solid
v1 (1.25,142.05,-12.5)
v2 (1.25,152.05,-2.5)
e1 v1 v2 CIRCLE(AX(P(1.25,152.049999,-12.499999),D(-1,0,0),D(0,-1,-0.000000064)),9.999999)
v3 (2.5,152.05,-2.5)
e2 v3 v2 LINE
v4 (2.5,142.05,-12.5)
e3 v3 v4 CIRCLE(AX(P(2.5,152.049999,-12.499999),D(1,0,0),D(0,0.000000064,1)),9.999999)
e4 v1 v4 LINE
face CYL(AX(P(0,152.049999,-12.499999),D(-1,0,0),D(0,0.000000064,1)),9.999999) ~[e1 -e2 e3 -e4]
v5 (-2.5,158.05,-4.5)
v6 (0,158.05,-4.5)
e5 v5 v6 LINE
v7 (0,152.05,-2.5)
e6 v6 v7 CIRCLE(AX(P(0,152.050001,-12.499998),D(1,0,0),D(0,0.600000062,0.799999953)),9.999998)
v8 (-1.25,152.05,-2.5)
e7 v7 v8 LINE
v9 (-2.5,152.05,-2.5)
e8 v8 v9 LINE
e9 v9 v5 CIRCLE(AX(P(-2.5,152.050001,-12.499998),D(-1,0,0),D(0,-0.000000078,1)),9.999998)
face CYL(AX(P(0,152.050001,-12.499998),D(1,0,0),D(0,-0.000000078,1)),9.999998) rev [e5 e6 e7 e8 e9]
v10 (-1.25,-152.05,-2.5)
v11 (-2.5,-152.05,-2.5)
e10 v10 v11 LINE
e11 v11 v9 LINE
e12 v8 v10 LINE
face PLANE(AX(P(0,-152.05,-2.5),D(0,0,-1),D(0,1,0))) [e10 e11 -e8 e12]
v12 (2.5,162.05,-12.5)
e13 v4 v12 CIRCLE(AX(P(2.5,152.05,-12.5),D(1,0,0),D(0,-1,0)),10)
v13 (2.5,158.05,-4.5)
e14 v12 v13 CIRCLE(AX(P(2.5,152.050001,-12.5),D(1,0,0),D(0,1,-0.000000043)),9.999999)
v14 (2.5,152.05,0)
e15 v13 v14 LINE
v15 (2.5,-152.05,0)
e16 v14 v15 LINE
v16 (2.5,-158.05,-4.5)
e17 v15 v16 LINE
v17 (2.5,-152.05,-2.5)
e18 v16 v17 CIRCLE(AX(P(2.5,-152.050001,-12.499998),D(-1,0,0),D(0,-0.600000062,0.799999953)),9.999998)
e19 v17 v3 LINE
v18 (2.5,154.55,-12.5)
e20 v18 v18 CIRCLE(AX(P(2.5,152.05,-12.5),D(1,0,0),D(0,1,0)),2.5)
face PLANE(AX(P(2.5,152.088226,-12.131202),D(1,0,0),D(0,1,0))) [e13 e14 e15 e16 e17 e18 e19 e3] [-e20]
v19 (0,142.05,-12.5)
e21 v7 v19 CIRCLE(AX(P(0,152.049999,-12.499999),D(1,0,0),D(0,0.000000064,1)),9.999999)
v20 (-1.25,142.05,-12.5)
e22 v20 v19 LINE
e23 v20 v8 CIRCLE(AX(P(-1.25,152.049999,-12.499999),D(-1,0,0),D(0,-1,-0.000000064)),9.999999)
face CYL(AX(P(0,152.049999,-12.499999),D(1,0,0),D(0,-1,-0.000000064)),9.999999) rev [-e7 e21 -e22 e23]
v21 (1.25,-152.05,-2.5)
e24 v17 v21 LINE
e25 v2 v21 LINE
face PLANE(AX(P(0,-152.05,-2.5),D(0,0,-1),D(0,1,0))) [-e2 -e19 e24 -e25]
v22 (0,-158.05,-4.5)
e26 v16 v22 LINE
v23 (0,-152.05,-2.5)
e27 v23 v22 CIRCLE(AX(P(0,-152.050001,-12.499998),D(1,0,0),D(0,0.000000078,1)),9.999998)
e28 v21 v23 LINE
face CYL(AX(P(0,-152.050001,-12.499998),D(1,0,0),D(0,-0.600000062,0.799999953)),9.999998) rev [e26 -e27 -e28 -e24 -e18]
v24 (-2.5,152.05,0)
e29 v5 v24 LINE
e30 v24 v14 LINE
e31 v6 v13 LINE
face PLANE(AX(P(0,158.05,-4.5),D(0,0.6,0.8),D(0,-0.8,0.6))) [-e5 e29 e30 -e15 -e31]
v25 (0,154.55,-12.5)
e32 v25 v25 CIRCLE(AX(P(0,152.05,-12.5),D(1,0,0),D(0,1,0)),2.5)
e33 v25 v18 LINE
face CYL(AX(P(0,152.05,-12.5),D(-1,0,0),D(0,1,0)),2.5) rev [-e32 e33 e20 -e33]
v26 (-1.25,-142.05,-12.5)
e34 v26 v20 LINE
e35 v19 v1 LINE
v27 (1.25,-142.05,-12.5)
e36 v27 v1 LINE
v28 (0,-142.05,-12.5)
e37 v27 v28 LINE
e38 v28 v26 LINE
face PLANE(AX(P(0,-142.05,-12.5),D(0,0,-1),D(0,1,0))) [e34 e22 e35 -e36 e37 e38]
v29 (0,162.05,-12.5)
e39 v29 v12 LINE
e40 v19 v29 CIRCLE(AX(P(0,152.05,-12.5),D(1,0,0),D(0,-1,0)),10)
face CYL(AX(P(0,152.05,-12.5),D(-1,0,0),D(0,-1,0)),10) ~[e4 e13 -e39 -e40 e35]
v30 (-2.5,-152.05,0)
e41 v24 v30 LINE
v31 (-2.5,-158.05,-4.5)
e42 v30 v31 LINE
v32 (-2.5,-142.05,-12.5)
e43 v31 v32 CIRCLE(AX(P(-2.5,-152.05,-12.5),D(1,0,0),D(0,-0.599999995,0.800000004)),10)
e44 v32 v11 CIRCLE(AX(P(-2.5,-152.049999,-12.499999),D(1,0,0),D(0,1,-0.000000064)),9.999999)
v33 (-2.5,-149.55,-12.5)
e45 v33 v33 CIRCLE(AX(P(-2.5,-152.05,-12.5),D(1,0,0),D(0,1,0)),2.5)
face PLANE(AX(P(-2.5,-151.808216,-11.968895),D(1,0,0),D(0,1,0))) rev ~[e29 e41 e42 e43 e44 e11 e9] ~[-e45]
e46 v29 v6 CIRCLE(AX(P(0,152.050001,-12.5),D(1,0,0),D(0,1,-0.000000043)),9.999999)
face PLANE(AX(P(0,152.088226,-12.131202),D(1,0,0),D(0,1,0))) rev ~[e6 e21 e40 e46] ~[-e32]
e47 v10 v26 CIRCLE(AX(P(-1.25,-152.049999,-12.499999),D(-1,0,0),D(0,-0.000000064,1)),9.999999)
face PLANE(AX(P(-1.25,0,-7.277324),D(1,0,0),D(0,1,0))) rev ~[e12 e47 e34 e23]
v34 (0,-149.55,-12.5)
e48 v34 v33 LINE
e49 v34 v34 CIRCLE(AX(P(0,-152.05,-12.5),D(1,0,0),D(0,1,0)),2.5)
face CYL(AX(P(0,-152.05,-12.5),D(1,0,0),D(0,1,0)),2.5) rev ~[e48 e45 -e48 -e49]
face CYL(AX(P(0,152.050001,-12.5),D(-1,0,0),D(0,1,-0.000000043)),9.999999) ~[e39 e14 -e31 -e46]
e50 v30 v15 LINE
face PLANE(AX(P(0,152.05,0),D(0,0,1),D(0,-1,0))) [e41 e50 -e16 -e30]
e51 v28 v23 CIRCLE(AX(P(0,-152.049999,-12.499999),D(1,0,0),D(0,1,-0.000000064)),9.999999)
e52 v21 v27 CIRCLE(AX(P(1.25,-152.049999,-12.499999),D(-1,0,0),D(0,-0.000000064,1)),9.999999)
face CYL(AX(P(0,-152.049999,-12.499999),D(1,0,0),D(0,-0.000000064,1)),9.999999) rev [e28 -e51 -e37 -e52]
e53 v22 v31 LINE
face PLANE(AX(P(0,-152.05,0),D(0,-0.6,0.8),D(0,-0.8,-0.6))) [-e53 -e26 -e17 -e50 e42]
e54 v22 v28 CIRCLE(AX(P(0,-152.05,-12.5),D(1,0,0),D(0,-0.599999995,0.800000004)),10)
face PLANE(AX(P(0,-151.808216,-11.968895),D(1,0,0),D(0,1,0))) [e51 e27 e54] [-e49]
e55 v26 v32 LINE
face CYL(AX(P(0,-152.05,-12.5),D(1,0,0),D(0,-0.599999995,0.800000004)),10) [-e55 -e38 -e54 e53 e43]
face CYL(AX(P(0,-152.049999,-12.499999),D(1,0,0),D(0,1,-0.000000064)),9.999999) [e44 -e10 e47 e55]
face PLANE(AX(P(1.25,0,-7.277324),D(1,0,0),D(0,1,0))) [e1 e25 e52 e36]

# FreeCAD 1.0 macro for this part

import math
import FreeCAD as App
import Part
import Sketcher
Q = App.Units.Quantity

doc = App.newDocument("Part")
body = doc.addObject("PartDesign::Body", "Body")

# Sketch on YZ plane
sketch1 = body.newObject("Sketcher::SketchObject", "Sketch")
sketch1.AttachmentSupport = (doc.getObject("YZ_Plane"), [""])
sketch1.MapMode = "FlatFace"
sketch1.addGeometry(Part.ArcOfCircle(Part.Circle(App.Vector(152.050001, -12.499998, 0), App.Vector(0, 0, 1), 9.999998), math.radians(53.130098), math.radians(90.000004)), False)
sketch1.addGeometry(Part.LineSegment(App.Vector(158.05, -4.5, 0), App.Vector(152.05, 0, 0)), False)
sketch1.addGeometry(Part.LineSegment(App.Vector(152.05, 0, 0), App.Vector(-152.05, 0, 0)), False)
sketch1.addGeometry(Part.LineSegment(App.Vector(-152.05, 0, 0), App.Vector(-158.05, -4.5, 0)), False)
sketch1.addGeometry(Part.ArcOfCircle(Part.Circle(App.Vector(-152.050001, -12.499998, 0), App.Vector(0, 0, 1), 9.999998), math.radians(89.999996), math.radians(126.869902)), False)
sketch1.addGeometry(Part.LineSegment(App.Vector(-152.05, -2.5, 0), App.Vector(152.05, -2.5, 0)), False)
sketch1.addConstraint(Sketcher.Constraint("Tangent", 0, 1, 1, 1))
sketch1.addConstraint(Sketcher.Constraint("Coincident", 1, 2, 2, 1))
sketch1.addConstraint(Sketcher.Constraint("Coincident", 2, 2, 3, 1))
sketch1.addConstraint(Sketcher.Constraint("Tangent", 3, 2, 4, 2))
sketch1.addConstraint(Sketcher.Constraint("Tangent", 4, 1, 5, 1))
sketch1.addConstraint(Sketcher.Constraint("Tangent", 5, 2, 0, 2))
sketch1.addConstraint(Sketcher.Constraint("Horizontal", 2))
sketch1.addConstraint(Sketcher.Constraint("Horizontal", 5))
sketch1.addConstraint(Sketcher.Constraint("Equal", 0, 4))
sketch1.addConstraint(Sketcher.Constraint("Symmetric", 1, 2, 2, 2, -1, 1))
sketch1.addConstraint(Sketcher.Constraint("Horizontal", 0, 1, 3, 2))
sketch1.addConstraint(Sketcher.Constraint("Vertical", 0, 3, 1, 2))
sketch1.addConstraint(Sketcher.Constraint("DistanceX", 2, 2, 2, 1, Q("304.1 mm")))
sketch1.addConstraint(Sketcher.Constraint("DistanceX", 0, 3, 0, 1, Q("5.999999 mm")))
sketch1.addConstraint(Sketcher.Constraint("DistanceY", 3, 2, 4, 1, Q("2 mm")))
pad1 = body.newObject("PartDesign::Pad", "Pad")
pad1.Profile = sketch1
pad1.Length = 5
pad1.Midplane = True

# Sketch on YZ plane
sketch2 = body.newObject("Sketcher::SketchObject", "Sketch001")
sketch2.AttachmentSupport = (doc.getObject("YZ_Plane"), [""])
sketch2.MapMode = "FlatFace"
sketch2.addGeometry(Part.ArcOfCircle(Part.Circle(App.Vector(-152.05, -12.5, 0), App.Vector(0, 0, 1), 10), math.radians(126.869897), math.radians(360)), False)
sketch2.addGeometry(Part.ArcOfCircle(Part.Circle(App.Vector(-152.049999, -12.499999, 0), App.Vector(0, 0, 1), 9.999999), math.radians(-0.000004), math.radians(90.000004)), False)
sketch2.addGeometry(Part.ArcOfCircle(Part.Circle(App.Vector(-152.050001, -12.499998, 0), App.Vector(0, 0, 1), 9.999998), math.radians(89.999996), math.radians(126.869902)), False)
sketch2.addGeometry(Part.Circle(App.Vector(-152.05, -12.5, 0), App.Vector(0, 0, 1), 2.5), False)
sketch2.addConstraint(Sketcher.Constraint("Tangent", 0, 2, 1, 1))
sketch2.addConstraint(Sketcher.Constraint("Tangent", 1, 2, 2, 1))
sketch2.addConstraint(Sketcher.Constraint("Tangent", 2, 2, 0, 1))
sketch2.addConstraint(Sketcher.Constraint("Coincident", 3, 3, 0, 3))
sketch2.addConstraint(Sketcher.Constraint("Horizontal", 3, 3, 0, 2))
sketch2.addConstraint(Sketcher.Constraint("Vertical", 3, 3, 1, 2))
sketch2.addConstraint(Sketcher.Constraint("Diameter", 3, Q("5 mm")))
sketch2.addConstraint(Sketcher.Constraint("Radius", 0, Q("10 mm")))
sketch2.addConstraint(Sketcher.Constraint("DistanceX", 2, 2, 1, 2, Q("6 mm")))
sketch2.addConstraint(Sketcher.Constraint("DistanceY", 0, 3, -1, 1, Q("12.5 mm")))
sketch2.addConstraint(Sketcher.Constraint("DistanceX", 0, 3, -1, 1, Q("152.05 mm")))
pad2 = body.newObject("PartDesign::Pad", "Pad001")
pad2.Profile = sketch2
pad2.Length = 2.5
pad2.Reversed = True

# Sketch on YZ plane
sketch3 = body.newObject("Sketcher::SketchObject", "Sketch002")
sketch3.AttachmentSupport = (doc.getObject("YZ_Plane"), [""])
sketch3.MapMode = "FlatFace"
sketch3.addGeometry(Part.ArcOfCircle(Part.Circle(App.Vector(152.05, -12.5, 0), App.Vector(0, 0, 1), 10), math.radians(180), math.radians(360)), False)
sketch3.addGeometry(Part.ArcOfCircle(Part.Circle(App.Vector(152.050001, -12.5, 0), App.Vector(0, 0, 1), 9.999999), math.radians(-0.000002), math.radians(53.130105)), False)
sketch3.addGeometry(Part.ArcOfCircle(Part.Circle(App.Vector(152.050001, -12.499998, 0), App.Vector(0, 0, 1), 9.999998), math.radians(53.130098), math.radians(90.000004)), False)
sketch3.addGeometry(Part.ArcOfCircle(Part.Circle(App.Vector(152.049999, -12.499999, 0), App.Vector(0, 0, 1), 9.999999), math.radians(89.999996), math.radians(180.000004)), False)
sketch3.addGeometry(Part.Circle(App.Vector(152.05, -12.5, 0), App.Vector(0, 0, 1), 2.5), False)
sketch3.addConstraint(Sketcher.Constraint("Tangent", 0, 2, 1, 1))
sketch3.addConstraint(Sketcher.Constraint("Tangent", 1, 2, 2, 1))
sketch3.addConstraint(Sketcher.Constraint("Tangent", 2, 2, 3, 1))
sketch3.addConstraint(Sketcher.Constraint("Tangent", 3, 2, 0, 1))
sketch3.addConstraint(Sketcher.Constraint("Coincident", 4, 3, 0, 3))
sketch3.addConstraint(Sketcher.Constraint("Equal", 0, 1))
sketch3.addConstraint(Sketcher.Constraint("Horizontal", 4, 3, 0, 2))
sketch3.addConstraint(Sketcher.Constraint("Horizontal", 0, 2, 3, 2))
sketch3.addConstraint(Sketcher.Constraint("Vertical", 4, 3, 2, 2))
sketch3.addConstraint(Sketcher.Constraint("Diameter", 4, Q("5 mm")))
sketch3.addConstraint(Sketcher.Constraint("Radius", 0, Q("10 mm")))
sketch3.addConstraint(Sketcher.Constraint("DistanceX", 1, 2, 0, 2, Q("4 mm")))
sketch3.addConstraint(Sketcher.Constraint("DistanceY", 0, 3, -1, 1, Q("12.5 mm")))
sketch3.addConstraint(Sketcher.Constraint("DistanceX", -1, 1, 0, 3, Q("152.05 mm")))
pad3 = body.newObject("PartDesign::Pad", "Pad002")
pad3.Profile = sketch3
pad3.Length = 2.5

# Sketch on YZ plane
sketch4 = body.newObject("Sketcher::SketchObject", "Sketch003")
sketch4.AttachmentSupport = (doc.getObject("YZ_Plane"), [""])
sketch4.MapMode = "FlatFace"
sketch4.addGeometry(Part.LineSegment(App.Vector(-142.05, -12.5, 0), App.Vector(142.05, -12.5, 0)), False)
sketch4.addGeometry(Part.ArcOfCircle(Part.Circle(App.Vector(152.049999, -12.499999, 0), App.Vector(0, 0, 1), 9.999999), math.radians(89.999996), math.radians(180.000004)), False)
sketch4.addGeometry(Part.LineSegment(App.Vector(152.05, -2.5, 0), App.Vector(-152.05, -2.5, 0)), False)
sketch4.addGeometry(Part.ArcOfCircle(Part.Circle(App.Vector(-152.049999, -12.499999, 0), App.Vector(0, 0, 1), 9.999999), math.radians(-0.000004), math.radians(90.000004)), False)
sketch4.addConstraint(Sketcher.Constraint("Coincident", 0, 2, 1, 2))
sketch4.addConstraint(Sketcher.Constraint("Tangent", 1, 1, 2, 1))
sketch4.addConstraint(Sketcher.Constraint("Tangent", 2, 2, 3, 2))
sketch4.addConstraint(Sketcher.Constraint("Coincident", 3, 1, 0, 1))
sketch4.addConstraint(Sketcher.Constraint("Horizontal", 0))
sketch4.addConstraint(Sketcher.Constraint("Horizontal", 2))
sketch4.addConstraint(Sketcher.Constraint("Equal", 1, 3))
sketch4.addConstraint(Sketcher.Constraint("Horizontal", 3, 3, 0, 2))
sketch4.addConstraint(Sketcher.Constraint("Radius", 1, Q("9.999999 mm")))
sketch4.addConstraint(Sketcher.Constraint("DistanceX", 0, 1, 0, 2, Q("284.1 mm")))
sketch4.addConstraint(Sketcher.Constraint("DistanceY", 1, 3, -1, 1, Q("12.499999 mm")))
sketch4.addConstraint(Sketcher.Constraint("DistanceX", -1, 1, 1, 3, Q("152.049999 mm")))
pad4 = body.newObject("PartDesign::Pad", "Pad003")
pad4.Profile = sketch4
pad4.Length = 2.5
pad4.Midplane = True

doc.recompute()
